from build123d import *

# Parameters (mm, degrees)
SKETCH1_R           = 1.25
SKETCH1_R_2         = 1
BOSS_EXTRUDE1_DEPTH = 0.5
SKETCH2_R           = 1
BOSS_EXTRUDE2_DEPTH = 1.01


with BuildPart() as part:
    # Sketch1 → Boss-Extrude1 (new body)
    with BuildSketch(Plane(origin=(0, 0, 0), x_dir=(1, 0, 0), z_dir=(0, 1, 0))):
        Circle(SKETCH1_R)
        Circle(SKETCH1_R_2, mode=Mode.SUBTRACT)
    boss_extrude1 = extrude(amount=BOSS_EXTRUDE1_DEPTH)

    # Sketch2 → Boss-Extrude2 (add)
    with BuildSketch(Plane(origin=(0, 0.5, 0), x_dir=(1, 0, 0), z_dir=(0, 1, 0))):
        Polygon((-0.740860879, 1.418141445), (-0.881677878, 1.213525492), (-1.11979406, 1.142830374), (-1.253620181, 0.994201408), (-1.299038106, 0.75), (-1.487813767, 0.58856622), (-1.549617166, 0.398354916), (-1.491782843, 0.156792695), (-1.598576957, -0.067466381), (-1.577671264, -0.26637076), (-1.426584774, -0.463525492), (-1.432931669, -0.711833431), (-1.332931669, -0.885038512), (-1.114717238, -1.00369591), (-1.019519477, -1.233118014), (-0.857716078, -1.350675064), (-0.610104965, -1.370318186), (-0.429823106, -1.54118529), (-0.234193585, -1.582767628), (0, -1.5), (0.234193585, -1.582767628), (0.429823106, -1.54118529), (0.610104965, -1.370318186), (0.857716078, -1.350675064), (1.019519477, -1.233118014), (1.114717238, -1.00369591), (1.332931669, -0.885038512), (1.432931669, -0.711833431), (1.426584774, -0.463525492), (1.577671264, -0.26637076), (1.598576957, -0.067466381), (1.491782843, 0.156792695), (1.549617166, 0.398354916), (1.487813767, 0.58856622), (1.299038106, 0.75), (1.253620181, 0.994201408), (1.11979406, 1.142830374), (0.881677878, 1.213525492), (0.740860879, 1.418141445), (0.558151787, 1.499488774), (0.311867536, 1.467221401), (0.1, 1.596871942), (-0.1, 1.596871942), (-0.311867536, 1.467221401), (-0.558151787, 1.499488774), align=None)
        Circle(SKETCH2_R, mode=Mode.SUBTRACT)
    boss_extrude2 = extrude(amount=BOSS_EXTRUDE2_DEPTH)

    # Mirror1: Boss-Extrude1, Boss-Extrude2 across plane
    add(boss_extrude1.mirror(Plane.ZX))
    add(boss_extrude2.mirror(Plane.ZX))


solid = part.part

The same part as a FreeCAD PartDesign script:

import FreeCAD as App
import Part
import Sketcher
from FreeCAD import Vector
Q = App.Units.Quantity


def add_polygon(sketch, points):
    """Adds a closed chain of lines whose ends are joined by coincident constraints."""
    first, n = sketch.GeometryCount, len(points)
    for a, b in zip(points, points[1:] + points[:1]):
        sketch.addGeometry(Part.LineSegment(App.Vector(*a, 0), App.Vector(*b, 0)), False)
    for i in range(n):
        sketch.addConstraint(Sketcher.Constraint("Coincident", first + i, 2, first + (i + 1) % n, 1))

doc = App.newDocument("Part")
body = doc.addObject("PartDesign::Body", "Body")

# Sketch on XZ plane
sketch1 = body.newObject("Sketcher::SketchObject", "Sketch")
sketch1.AttachmentSupport = (doc.getObject("XZ_Plane"), [""])
sketch1.MapMode = "FlatFace"
sketch1.addGeometry(Part.Circle(Vector(0, 0, 0), Vector(0, 0, 1), 1.2), False)
sketch1.addGeometry(Part.Circle(Vector(0, 0, 0), Vector(0, 0, 1), 1), False)
sketch1.addConstraint(Sketcher.Constraint("Coincident", 0, 3, -1, 1))
sketch1.addConstraint(Sketcher.Constraint("Coincident", 1, 3, -1, 1))
sketch1.addConstraint(Sketcher.Constraint("Diameter", 1, 2.0))
sketch1.addConstraint(Sketcher.Constraint("Diameter", 0, 2.5))
pad1 = body.newObject("PartDesign::Pad", "Pad")
pad1.Profile = sketch1
pad1.Length = 0.5
pad1.Reversed = True

# Sketch on XZ plane
sketch2 = body.newObject("Sketcher::SketchObject", "Sketch001")
sketch2.AttachmentSupport = (doc.getObject("XZ_Plane"), [""])
sketch2.MapMode = "FlatFace"
sketch2.AttachmentOffset = App.Placement(Vector(0, 0, -0.5), App.Rotation())
add_polygon(sketch2, [(-0.74, -1.42), (-0.88, -1.21), (-1.12, -1.14), (-1.25, -0.99), (-1.3, -0.75), (-1.49, -0.59), (-1.55, -0.4), (-1.49, -0.16), (-1.6, 0.07), (-1.58, 0.27), (-1.43, 0.46), (-1.43, 0.71), (-1.33, 0.89), (-1.11, 1), (-1.02, 1.23), (-0.86, 1.35), (-0.61, 1.37), (-0.43, 1.54), (-0.23, 1.58), (0, 1.5), (0.23, 1.58), (0.43, 1.54), (0.61, 1.37), (0.86, 1.35), (1.02, 1.23), (1.11, 1), (1.33, 0.89), (1.43, 0.71), (1.43, 0.46), (1.58, 0.27), (1.6, 0.07), (1.49, -0.16), (1.55, -0.4), (1.49, -0.59), (1.3, -0.75), (1.25, -0.99), (1.12, -1.14), (0.88, -1.21), (0.74, -1.42), (0.56, -1.5), (0.31, -1.47), (0.1, -1.6), (-0.1, -1.6), (-0.31, -1.47), (-0.56, -1.5)])  # lines 0-44
sketch2.addGeometry(Part.Circle(Vector(0, 0, 0), Vector(0, 0, 1), 1), False)  # 45
sketch2.addConstraint(Sketcher.Constraint("Horizontal", 41))
sketch2.addConstraint(Sketcher.Constraint("Coincident", 45, 3, -1, 1))
sketch2.addConstraint(Sketcher.Constraint("Symmetric", 17, 2, 19, 2, -2))
sketch2.addConstraint(Sketcher.Constraint("Symmetric", 16, 2, 20, 2, -2))
sketch2.addConstraint(Sketcher.Constraint("Symmetric", 15, 2, 21, 2, -2))
sketch2.addConstraint(Sketcher.Constraint("Symmetric", 14, 2, 22, 2, -2))
sketch2.addConstraint(Sketcher.Constraint("Symmetric", 13, 2, 23, 2, -2))
sketch2.addConstraint(Sketcher.Constraint("Symmetric", 12, 2, 24, 2, -2))
sketch2.addConstraint(Sketcher.Constraint("Symmetric", 11, 2, 25, 2, -2))
sketch2.addConstraint(Sketcher.Constraint("Symmetric", 10, 2, 26, 2, -2))
sketch2.addConstraint(Sketcher.Constraint("Symmetric", 9, 2, 27, 2, -2))
sketch2.addConstraint(Sketcher.Constraint("Symmetric", 8, 2, 28, 2, -2))
sketch2.addConstraint(Sketcher.Constraint("Symmetric", 7, 2, 29, 2, -2))
sketch2.addConstraint(Sketcher.Constraint("Symmetric", 6, 2, 30, 2, -2))
sketch2.addConstraint(Sketcher.Constraint("Symmetric", 5, 2, 31, 2, -2))
sketch2.addConstraint(Sketcher.Constraint("Symmetric", 4, 2, 32, 2, -2))
sketch2.addConstraint(Sketcher.Constraint("Symmetric", 3, 2, 33, 2, -2))
sketch2.addConstraint(Sketcher.Constraint("Symmetric", 2, 2, 34, 2, -2))
sketch2.addConstraint(Sketcher.Constraint("Symmetric", 1, 2, 35, 2, -2))
sketch2.addConstraint(Sketcher.Constraint("Symmetric", 0, 2, 36, 2, -2))
sketch2.addConstraint(Sketcher.Constraint("Symmetric", 39, 2, 42, 2, -2))
sketch2.addConstraint(Sketcher.Constraint("Symmetric", 38, 2, 43, 2, -2))
sketch2.addConstraint(Sketcher.Constraint("Symmetric", 37, 2, 44, 2, -2))
sketch2.addConstraint(Sketcher.Constraint("PointOnObject", 18, 2, -2))
sketch2.addConstraint(Sketcher.Constraint("Equal", 0, 1))
sketch2.addConstraint(Sketcher.Constraint("Equal", 1, 3))
sketch2.addConstraint(Sketcher.Constraint("Equal", 3, 4))
sketch2.addConstraint(Sketcher.Constraint("Equal", 2, 5))
sketch2.addConstraint(Sketcher.Constraint("Equal", 4, 6))
sketch2.addConstraint(Sketcher.Constraint("Equal", 6, 7))
sketch2.addConstraint(Sketcher.Constraint("Equal", 5, 8))
sketch2.addConstraint(Sketcher.Constraint("Equal", 7, 9))
sketch2.addConstraint(Sketcher.Constraint("Equal", 9, 10))
sketch2.addConstraint(Sketcher.Constraint("Equal", 8, 11))
sketch2.addConstraint(Sketcher.Constraint("Equal", 10, 12))
sketch2.addConstraint(Sketcher.Constraint("Equal", 12, 13))
sketch2.addConstraint(Sketcher.Constraint("Equal", 11, 14))
sketch2.addConstraint(Sketcher.Constraint("Equal", 13, 15))
sketch2.addConstraint(Sketcher.Constraint("Equal", 15, 16))
sketch2.addConstraint(Sketcher.Constraint("Equal", 14, 17))
sketch2.addConstraint(Sketcher.Constraint("Equal", 16, 18))
sketch2.addConstraint(Sketcher.Constraint("Equal", 35, 38))
sketch2.addConstraint(Sketcher.Constraint("Equal", 37, 39))
sketch2.addConstraint(Sketcher.Constraint("Equal", 39, 40))
sketch2.addConstraint(Sketcher.Constraint("Equal", 40, 42))
sketch2.addConstraint(Sketcher.Constraint("Diameter", 45, 2.0))
sketch2.addConstraint(Sketcher.Constraint("Angle", 2, Q("132 deg")))
sketch2.addConstraint(Sketcher.Constraint("Angle", 5, Q("108 deg")))
sketch2.addConstraint(Sketcher.Constraint("Angle", 8, Q("84 deg")))
sketch2.addConstraint(Sketcher.Constraint("Angle", 11, Q("60 deg")))
sketch2.addConstraint(Sketcher.Constraint("Angle", 14, Q("36 deg")))
sketch2.addConstraint(Sketcher.Constraint("Angle", 17, Q("12 deg")))
sketch2.addConstraint(Sketcher.Constraint("Angle", 38, Q("-156 deg")))
sketch2.addConstraint(Sketcher.Constraint("DistanceX", 41, 2, 41, 1, 0.2))
sketch2.addConstraint(Sketcher.Constraint("Distance", 2, 0.2))
sketch2.addConstraint(Sketcher.Constraint("DistanceY", -1, 1, 18, 2, 1.5))
sketch2.addConstraint(Sketcher.Constraint("DistanceY", 3, 2, -1, 1, 0.75))
sketch2.addConstraint(Sketcher.Constraint("DistanceX", 12, 2, 14, 2, 0.257001))
sketch2.addConstraint(Sketcher.Constraint("DistanceY", 2, 2, -1, 1, 0.994201))
sketch2.addConstraint(Sketcher.Constraint("DistanceX", 6, 2, 9, 2, 0.065198))
sketch2.addConstraint(Sketcher.Constraint("DistanceY", 13, 2, 15, 2, 0.1372))
sketch2.addConstraint(Sketcher.Constraint("DistanceX", 15, 2, 19, 2, 0.844299))
sketch2.addConstraint(Sketcher.Constraint("Distance", 0, 0.248389))
sketch2.addConstraint(Sketcher.Constraint("DistanceX", 2, 2, -1, 1, 1.25362))
sketch2.addConstraint(Sketcher.Constraint("DistanceX", 8, 2, -1, 1, 1.577671))
sketch2.addConstraint(Sketcher.Constraint("DistanceY", -1, 1, 8, 2, 0.266371))
sketch2.addConstraint(Sketcher.Constraint("DistanceX", 10, 2, -1, 1, 1.432932))
sketch2.addConstraint(Sketcher.Constraint("DistanceY", -1, 1, 11, 2, 0.885039))
sketch2.addConstraint(Sketcher.Constraint("DistanceX", -1, 1, 37, 2, 0.740861))
sketch2.addConstraint(Sketcher.Constraint("DistanceY", 37, 2, -1, 1, 1.418141))
sketch2.addConstraint(Sketcher.Constraint("DistanceY", 39, 2, -1, 1, 1.467221))
pad2 = body.newObject("PartDesign::Pad", "Pad001")
pad2.Profile = sketch2
pad2.Length = 1.01
pad2.Reversed = True
doc.recompute()

mirrored = body.newObject("PartDesign::Mirrored", "Mirrored")
mirrored.Originals = [pad1, pad2]
mirrored.MirrorPlane = (doc.getObject("XZ_Plane"), [""])
body.Tip = mirrored

doc.recompute()
